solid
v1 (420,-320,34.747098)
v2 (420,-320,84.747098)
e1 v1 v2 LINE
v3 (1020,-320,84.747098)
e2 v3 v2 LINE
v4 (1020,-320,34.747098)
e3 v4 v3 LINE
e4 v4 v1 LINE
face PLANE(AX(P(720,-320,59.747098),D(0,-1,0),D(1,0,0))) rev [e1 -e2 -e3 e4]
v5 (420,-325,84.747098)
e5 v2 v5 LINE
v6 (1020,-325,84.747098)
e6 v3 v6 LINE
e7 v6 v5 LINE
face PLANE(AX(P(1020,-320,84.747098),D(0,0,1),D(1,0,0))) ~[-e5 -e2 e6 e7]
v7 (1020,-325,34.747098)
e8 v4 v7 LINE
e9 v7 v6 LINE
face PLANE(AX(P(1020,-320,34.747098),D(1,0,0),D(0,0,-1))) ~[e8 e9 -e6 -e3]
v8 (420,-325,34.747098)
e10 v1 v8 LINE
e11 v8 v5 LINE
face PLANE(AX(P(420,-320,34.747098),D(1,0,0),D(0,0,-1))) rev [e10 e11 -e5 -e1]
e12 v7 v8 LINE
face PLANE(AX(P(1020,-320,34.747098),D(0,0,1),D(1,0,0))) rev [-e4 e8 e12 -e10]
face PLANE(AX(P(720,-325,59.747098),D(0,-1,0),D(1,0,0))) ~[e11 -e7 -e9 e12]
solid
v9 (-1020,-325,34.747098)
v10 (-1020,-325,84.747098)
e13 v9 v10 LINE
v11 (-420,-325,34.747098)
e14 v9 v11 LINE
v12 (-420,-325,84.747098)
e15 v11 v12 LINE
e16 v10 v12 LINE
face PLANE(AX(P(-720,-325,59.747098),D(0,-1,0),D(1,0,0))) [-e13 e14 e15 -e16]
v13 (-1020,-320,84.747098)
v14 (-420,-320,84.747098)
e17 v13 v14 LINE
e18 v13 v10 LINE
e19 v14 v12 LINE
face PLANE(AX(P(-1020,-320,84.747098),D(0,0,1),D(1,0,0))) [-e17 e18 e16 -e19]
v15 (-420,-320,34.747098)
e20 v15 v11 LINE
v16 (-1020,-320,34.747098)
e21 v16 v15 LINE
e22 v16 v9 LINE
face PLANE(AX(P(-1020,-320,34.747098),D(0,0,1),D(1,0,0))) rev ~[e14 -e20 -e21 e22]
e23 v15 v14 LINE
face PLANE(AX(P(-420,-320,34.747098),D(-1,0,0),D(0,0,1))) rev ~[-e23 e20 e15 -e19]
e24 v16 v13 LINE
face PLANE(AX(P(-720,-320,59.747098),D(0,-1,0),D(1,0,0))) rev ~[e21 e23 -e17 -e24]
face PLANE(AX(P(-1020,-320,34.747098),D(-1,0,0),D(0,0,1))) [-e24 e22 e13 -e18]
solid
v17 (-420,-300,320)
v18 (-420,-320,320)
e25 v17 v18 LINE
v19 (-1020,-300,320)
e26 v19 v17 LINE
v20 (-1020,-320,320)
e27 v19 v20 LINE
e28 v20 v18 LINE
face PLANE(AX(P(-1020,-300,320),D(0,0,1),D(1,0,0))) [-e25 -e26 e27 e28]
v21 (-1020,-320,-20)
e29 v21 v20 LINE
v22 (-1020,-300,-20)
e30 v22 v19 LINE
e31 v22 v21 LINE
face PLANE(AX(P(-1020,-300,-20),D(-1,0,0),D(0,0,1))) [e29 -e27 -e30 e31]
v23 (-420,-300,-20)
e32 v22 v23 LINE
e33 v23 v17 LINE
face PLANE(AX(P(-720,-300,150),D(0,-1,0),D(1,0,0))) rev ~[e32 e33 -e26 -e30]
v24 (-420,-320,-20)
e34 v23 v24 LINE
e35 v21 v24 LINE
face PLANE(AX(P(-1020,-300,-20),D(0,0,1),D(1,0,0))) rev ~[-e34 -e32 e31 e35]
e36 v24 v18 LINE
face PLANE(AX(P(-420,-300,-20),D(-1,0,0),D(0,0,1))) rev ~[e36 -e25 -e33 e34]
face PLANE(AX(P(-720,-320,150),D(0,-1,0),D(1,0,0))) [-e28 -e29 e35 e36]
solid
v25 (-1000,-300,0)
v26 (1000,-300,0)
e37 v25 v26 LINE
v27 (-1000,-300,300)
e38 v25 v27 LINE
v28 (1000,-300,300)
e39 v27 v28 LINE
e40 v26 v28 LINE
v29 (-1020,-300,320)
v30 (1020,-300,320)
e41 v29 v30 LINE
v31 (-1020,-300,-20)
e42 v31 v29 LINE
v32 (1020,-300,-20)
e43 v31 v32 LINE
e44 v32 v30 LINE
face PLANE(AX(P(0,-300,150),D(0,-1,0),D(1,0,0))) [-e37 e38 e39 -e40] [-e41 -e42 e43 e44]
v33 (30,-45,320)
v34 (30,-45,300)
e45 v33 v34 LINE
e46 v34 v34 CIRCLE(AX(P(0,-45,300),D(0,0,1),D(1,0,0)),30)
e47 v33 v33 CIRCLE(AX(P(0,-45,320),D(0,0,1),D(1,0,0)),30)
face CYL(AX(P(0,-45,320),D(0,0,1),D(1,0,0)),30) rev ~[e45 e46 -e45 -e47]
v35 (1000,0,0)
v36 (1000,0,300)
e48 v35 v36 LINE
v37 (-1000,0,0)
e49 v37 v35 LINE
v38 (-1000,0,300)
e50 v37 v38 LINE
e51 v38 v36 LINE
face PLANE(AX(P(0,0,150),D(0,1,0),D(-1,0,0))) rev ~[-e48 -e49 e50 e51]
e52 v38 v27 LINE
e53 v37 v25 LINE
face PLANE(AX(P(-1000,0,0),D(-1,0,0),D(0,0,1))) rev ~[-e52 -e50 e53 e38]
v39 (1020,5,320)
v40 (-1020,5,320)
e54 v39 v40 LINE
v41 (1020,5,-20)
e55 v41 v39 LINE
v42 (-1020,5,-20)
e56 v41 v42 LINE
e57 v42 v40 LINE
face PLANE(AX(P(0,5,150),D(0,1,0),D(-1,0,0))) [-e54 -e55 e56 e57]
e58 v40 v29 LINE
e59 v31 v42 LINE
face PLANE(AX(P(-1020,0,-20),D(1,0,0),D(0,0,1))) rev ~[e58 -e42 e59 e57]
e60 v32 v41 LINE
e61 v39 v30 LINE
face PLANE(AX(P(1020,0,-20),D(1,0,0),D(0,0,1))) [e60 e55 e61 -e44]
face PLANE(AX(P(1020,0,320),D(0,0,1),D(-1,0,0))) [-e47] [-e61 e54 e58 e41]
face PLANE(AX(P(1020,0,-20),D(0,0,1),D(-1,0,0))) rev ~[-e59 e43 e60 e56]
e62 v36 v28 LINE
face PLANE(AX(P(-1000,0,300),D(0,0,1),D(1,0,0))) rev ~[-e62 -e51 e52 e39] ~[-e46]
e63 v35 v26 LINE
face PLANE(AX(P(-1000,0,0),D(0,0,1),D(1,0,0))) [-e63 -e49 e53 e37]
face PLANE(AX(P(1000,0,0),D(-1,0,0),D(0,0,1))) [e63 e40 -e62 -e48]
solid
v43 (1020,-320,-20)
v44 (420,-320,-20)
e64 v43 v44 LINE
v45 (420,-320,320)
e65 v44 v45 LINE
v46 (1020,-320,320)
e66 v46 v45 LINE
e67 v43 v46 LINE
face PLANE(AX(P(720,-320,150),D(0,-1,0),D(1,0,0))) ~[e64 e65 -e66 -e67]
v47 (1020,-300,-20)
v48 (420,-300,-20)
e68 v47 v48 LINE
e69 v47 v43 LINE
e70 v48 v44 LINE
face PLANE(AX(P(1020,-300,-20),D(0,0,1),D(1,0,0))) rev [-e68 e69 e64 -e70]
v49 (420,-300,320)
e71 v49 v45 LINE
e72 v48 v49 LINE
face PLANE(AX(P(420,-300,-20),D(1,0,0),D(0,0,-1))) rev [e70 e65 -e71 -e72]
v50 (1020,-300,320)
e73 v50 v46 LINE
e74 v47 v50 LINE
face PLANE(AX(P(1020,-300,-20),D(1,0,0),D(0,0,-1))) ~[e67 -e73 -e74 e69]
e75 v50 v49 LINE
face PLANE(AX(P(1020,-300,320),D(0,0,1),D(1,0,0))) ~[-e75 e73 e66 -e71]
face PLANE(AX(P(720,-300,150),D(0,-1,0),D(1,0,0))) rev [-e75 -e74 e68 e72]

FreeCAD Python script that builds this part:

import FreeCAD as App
import Part
import Sketcher

doc = App.newDocument("Part")
body = doc.addObject("PartDesign::Body", "Body")

# Sketch on XZ plane
sketch1 = doc.addObject("Sketcher::SketchObject", "Sketch")
body.addObject(sketch1)
sketch1.AttachmentSupport = (doc.XZ_Plane, [""])
sketch1.MapMode = "FlatFace"
sketch1.addGeometry([
    Part.LineSegment(App.Vector(-1020, 320, 0), App.Vector(-1020, -20, 0)),  # 0
    Part.LineSegment(App.Vector(-1020, -20, 0), App.Vector(1020, -20, 0)),  # 1
    Part.LineSegment(App.Vector(1020, -20, 0), App.Vector(1020, 320, 0)),  # 2
    Part.LineSegment(App.Vector(1020, 320, 0), App.Vector(-1020, 320, 0)),  # 3
    Part.LineSegment(App.Vector(1000, 0, 0), App.Vector(-1000, 0, 0)),  # 4
    Part.LineSegment(App.Vector(-1000, 0, 0), App.Vector(-1000, 300, 0)),  # 5
    Part.LineSegment(App.Vector(-1000, 300, 0), App.Vector(1000, 300, 0)),  # 6
    Part.LineSegment(App.Vector(1000, 300, 0), App.Vector(1000, 0, 0)),  # 7
], False)
sketch1.addConstraint([
    Sketcher.Constraint("Coincident", 0, 2, 1, 1),
    Sketcher.Constraint("Coincident", 1, 2, 2, 1),
    Sketcher.Constraint("Coincident", 2, 2, 3, 1),
    Sketcher.Constraint("Coincident", 3, 2, 0, 1),
    Sketcher.Constraint("Coincident", 4, 2, 5, 1),
    Sketcher.Constraint("Coincident", 5, 2, 6, 1),
    Sketcher.Constraint("Coincident", 6, 2, 7, 1),
    Sketcher.Constraint("Coincident", 7, 2, 4, 1),
    Sketcher.Constraint("Vertical", 0),
    Sketcher.Constraint("Horizontal", 1),
    Sketcher.Constraint("Vertical", 2),
    Sketcher.Constraint("Horizontal", 3),
    Sketcher.Constraint("Horizontal", 4),
    Sketcher.Constraint("Vertical", 5),
    Sketcher.Constraint("Horizontal", 6),
    Sketcher.Constraint("Vertical", 7),
    Sketcher.Constraint("Symmetric", 4, 2, 7, 2, -1, 1),
    Sketcher.Constraint("DistanceX", 1, 1, 1, 2, 2040.0),
    Sketcher.Constraint("DistanceX", 4, 2, 4, 1, 2000.0),
    Sketcher.Constraint("DistanceY", 0, 2, 0, 1, 340.0),
    Sketcher.Constraint("DistanceY", 5, 1, 5, 2, 300.0),
    Sketcher.Constraint("DistanceX", 0, 2, -1, 1, 1020.0),
    Sketcher.Constraint("DistanceY", 0, 2, -1, 1, 20.0),
])
pad1 = doc.addObject("PartDesign::Pad", "Pad")
body.addObject(pad1)
pad1.Profile = sketch1
pad1.Length = 300

# Sketch on XZ plane
sketch2 = doc.addObject("Sketcher::SketchObject", "Sketch001")
body.addObject(sketch2)
sketch2.AttachmentSupport = (doc.XZ_Plane, [""])
sketch2.MapMode = "FlatFace"
sketch2.addGeometry([
    Part.LineSegment(App.Vector(1020, 320, 0), App.Vector(1020, -20, 0)),
    Part.LineSegment(App.Vector(1020, -20, 0), App.Vector(-1020, -20, 0)),
    Part.LineSegment(App.Vector(-1020, -20, 0), App.Vector(-1020, 320, 0)),
    Part.LineSegment(App.Vector(-1020, 320, 0), App.Vector(1020, 320, 0)),
], False)
sketch2.addConstraint([
    Sketcher.Constraint("Coincident", 0, 2, 1, 1),
    Sketcher.Constraint("Coincident", 1, 2, 2, 1),
    Sketcher.Constraint("Coincident", 2, 2, 3, 1),
    Sketcher.Constraint("Coincident", 3, 2, 0, 1),
    Sketcher.Constraint("Vertical", 0),
    Sketcher.Constraint("Horizontal", 1),
    Sketcher.Constraint("Vertical", 2),
    Sketcher.Constraint("Horizontal", 3),
    Sketcher.Constraint("DistanceX", 1, 2, 1, 1, 2040.0),
    Sketcher.Constraint("DistanceY", 0, 2, 0, 1, 340.0),
    Sketcher.Constraint("DistanceX", -1, 1, 0, 2, 1020.0),
    Sketcher.Constraint("DistanceY", 0, 2, -1, 1, 20.0),
])
pad2 = doc.addObject("PartDesign::Pad", "Pad001")
body.addObject(pad2)
pad2.Profile = sketch2
pad2.Length = 5
pad2.Reversed = True

# Sketch on XY plane
sketch3 = doc.addObject("Sketcher::SketchObject", "Sketch002")
body.addObject(sketch3)
sketch3.AttachmentSupport = (doc.XY_Plane, [""])
sketch3.MapMode = "FlatFace"
sketch3.AttachmentOffset = App.Placement(App.Vector(0, 0, 320), App.Rotation())
sketch3.addGeometry(Part.Circle(App.Vector(0, -45, 0), App.Vector(0, 0, 1), 30), False)
sketch3.addConstraint([
    Sketcher.Constraint("PointOnObject", 0, 3, -2),
    Sketcher.Constraint("Diameter", 0, 60.0),
    Sketcher.Constraint("DistanceY", 0, 3, -1, 1, 45.0),
])
pocket1 = doc.addObject("PartDesign::Pocket", "Pocket")
body.addObject(pocket1)
pocket1.Profile = sketch3
pocket1.Length = 50
body2 = doc.addObject("PartDesign::Body", "Body001")

# Sketch on XZ plane
sketch4 = doc.addObject("Sketcher::SketchObject", "Sketch003")
body2.addObject(sketch4)
sketch4.AttachmentSupport = (doc.getObject("XZ_Plane001"), [""])
sketch4.MapMode = "FlatFace"
sketch4.AttachmentOffset = App.Placement(App.Vector(0, 0, 300), App.Rotation())
sketch4.addGeometry([
    Part.LineSegment(App.Vector(-1020, 320, 0), App.Vector(-1020, -20, 0)),
    Part.LineSegment(App.Vector(-1020, -20, 0), App.Vector(-420, -20, 0)),
    Part.LineSegment(App.Vector(-420, -20, 0), App.Vector(-420, 320, 0)),
    Part.LineSegment(App.Vector(-420, 320, 0), App.Vector(-1020, 320, 0)),
], False)
sketch4.addConstraint([
    Sketcher.Constraint("Coincident", 0, 2, 1, 1),
    Sketcher.Constraint("Coincident", 1, 2, 2, 1),
    Sketcher.Constraint("Coincident", 2, 2, 3, 1),
    Sketcher.Constraint("Coincident", 3, 2, 0, 1),
    Sketcher.Constraint("Vertical", 0),
    Sketcher.Constraint("Horizontal", 1),
    Sketcher.Constraint("Vertical", 2),
    Sketcher.Constraint("Horizontal", 3),
    Sketcher.Constraint("DistanceX", 1, 1, 1, 2, 600.0),
    Sketcher.Constraint("DistanceY", 0, 2, 0, 1, 340.0),
    Sketcher.Constraint("DistanceX", 0, 2, -1, 1, 1020.0),
    Sketcher.Constraint("DistanceY", 0, 2, -1, 1, 20.0),
])
pad3 = doc.addObject("PartDesign::Pad", "Pad002")
body2.addObject(pad3)
pad3.Profile = sketch4
pad3.Length = 20
body3 = doc.addObject("PartDesign::Body", "Body002")
doc.recompute()

mirroring = doc.addObject("Part::Mirroring", "Mirroring")
mirroring.Source = body2
mirroring.Base = App.Vector(0, 0, 0)
mirroring.Normal = App.Vector(1, 0, 0)
body3.BaseFeature = mirroring
doc.recompute()
body4 = doc.addObject("PartDesign::Body", "Body003")

# Sketch on XZ plane
sketch5 = doc.addObject("Sketcher::SketchObject", "Sketch004")
body4.addObject(sketch5)
sketch5.AttachmentSupport = (doc.getObject("XZ_Plane003"), [""])
sketch5.MapMode = "FlatFace"
sketch5.AttachmentOffset = App.Placement(App.Vector(0, 0, 320), App.Rotation())
sketch5.addGeometry([
    Part.LineSegment(App.Vector(-1020, 85, 0), App.Vector(-1020, 35, 0)),
    Part.LineSegment(App.Vector(-1020, 35, 0), App.Vector(-420, 35, 0)),
    Part.LineSegment(App.Vector(-420, 35, 0), App.Vector(-420, 85, 0)),
    Part.LineSegment(App.Vector(-420, 85, 0), App.Vector(-1020, 85, 0)),
], False)
sketch5.addConstraint([
    Sketcher.Constraint("Coincident", 0, 2, 1, 1),
    Sketcher.Constraint("Coincident", 1, 2, 2, 1),
    Sketcher.Constraint("Coincident", 2, 2, 3, 1),
    Sketcher.Constraint("Coincident", 3, 2, 0, 1),
    Sketcher.Constraint("Vertical", 0),
    Sketcher.Constraint("Horizontal", 1),
    Sketcher.Constraint("Vertical", 2),
    Sketcher.Constraint("Horizontal", 3),
    Sketcher.Constraint("DistanceX", 1, 1, 1, 2, 600.0),
    Sketcher.Constraint("DistanceY", 0, 2, 0, 1, 50.0),
    Sketcher.Constraint("DistanceX", 0, 2, -1, 1, 1020.0),
    Sketcher.Constraint("DistanceY", -1, 1, 0, 2, 34.747098),
])
pad4 = doc.addObject("PartDesign::Pad", "Pad003")
body4.addObject(pad4)
pad4.Profile = sketch5
pad4.Length = 5
body5 = doc.addObject("PartDesign::Body", "Body004")
doc.recompute()

mirroring2 = doc.addObject("Part::Mirroring", "Mirroring001")
mirroring2.Source = body4
mirroring2.Base = App.Vector(0, 0, 0)
mirroring2.Normal = App.Vector(1, 0, 0)
body5.BaseFeature = mirroring2
doc.recompute()
mirroring.Visibility = False
mirroring2.Visibility = False

doc.recompute()
